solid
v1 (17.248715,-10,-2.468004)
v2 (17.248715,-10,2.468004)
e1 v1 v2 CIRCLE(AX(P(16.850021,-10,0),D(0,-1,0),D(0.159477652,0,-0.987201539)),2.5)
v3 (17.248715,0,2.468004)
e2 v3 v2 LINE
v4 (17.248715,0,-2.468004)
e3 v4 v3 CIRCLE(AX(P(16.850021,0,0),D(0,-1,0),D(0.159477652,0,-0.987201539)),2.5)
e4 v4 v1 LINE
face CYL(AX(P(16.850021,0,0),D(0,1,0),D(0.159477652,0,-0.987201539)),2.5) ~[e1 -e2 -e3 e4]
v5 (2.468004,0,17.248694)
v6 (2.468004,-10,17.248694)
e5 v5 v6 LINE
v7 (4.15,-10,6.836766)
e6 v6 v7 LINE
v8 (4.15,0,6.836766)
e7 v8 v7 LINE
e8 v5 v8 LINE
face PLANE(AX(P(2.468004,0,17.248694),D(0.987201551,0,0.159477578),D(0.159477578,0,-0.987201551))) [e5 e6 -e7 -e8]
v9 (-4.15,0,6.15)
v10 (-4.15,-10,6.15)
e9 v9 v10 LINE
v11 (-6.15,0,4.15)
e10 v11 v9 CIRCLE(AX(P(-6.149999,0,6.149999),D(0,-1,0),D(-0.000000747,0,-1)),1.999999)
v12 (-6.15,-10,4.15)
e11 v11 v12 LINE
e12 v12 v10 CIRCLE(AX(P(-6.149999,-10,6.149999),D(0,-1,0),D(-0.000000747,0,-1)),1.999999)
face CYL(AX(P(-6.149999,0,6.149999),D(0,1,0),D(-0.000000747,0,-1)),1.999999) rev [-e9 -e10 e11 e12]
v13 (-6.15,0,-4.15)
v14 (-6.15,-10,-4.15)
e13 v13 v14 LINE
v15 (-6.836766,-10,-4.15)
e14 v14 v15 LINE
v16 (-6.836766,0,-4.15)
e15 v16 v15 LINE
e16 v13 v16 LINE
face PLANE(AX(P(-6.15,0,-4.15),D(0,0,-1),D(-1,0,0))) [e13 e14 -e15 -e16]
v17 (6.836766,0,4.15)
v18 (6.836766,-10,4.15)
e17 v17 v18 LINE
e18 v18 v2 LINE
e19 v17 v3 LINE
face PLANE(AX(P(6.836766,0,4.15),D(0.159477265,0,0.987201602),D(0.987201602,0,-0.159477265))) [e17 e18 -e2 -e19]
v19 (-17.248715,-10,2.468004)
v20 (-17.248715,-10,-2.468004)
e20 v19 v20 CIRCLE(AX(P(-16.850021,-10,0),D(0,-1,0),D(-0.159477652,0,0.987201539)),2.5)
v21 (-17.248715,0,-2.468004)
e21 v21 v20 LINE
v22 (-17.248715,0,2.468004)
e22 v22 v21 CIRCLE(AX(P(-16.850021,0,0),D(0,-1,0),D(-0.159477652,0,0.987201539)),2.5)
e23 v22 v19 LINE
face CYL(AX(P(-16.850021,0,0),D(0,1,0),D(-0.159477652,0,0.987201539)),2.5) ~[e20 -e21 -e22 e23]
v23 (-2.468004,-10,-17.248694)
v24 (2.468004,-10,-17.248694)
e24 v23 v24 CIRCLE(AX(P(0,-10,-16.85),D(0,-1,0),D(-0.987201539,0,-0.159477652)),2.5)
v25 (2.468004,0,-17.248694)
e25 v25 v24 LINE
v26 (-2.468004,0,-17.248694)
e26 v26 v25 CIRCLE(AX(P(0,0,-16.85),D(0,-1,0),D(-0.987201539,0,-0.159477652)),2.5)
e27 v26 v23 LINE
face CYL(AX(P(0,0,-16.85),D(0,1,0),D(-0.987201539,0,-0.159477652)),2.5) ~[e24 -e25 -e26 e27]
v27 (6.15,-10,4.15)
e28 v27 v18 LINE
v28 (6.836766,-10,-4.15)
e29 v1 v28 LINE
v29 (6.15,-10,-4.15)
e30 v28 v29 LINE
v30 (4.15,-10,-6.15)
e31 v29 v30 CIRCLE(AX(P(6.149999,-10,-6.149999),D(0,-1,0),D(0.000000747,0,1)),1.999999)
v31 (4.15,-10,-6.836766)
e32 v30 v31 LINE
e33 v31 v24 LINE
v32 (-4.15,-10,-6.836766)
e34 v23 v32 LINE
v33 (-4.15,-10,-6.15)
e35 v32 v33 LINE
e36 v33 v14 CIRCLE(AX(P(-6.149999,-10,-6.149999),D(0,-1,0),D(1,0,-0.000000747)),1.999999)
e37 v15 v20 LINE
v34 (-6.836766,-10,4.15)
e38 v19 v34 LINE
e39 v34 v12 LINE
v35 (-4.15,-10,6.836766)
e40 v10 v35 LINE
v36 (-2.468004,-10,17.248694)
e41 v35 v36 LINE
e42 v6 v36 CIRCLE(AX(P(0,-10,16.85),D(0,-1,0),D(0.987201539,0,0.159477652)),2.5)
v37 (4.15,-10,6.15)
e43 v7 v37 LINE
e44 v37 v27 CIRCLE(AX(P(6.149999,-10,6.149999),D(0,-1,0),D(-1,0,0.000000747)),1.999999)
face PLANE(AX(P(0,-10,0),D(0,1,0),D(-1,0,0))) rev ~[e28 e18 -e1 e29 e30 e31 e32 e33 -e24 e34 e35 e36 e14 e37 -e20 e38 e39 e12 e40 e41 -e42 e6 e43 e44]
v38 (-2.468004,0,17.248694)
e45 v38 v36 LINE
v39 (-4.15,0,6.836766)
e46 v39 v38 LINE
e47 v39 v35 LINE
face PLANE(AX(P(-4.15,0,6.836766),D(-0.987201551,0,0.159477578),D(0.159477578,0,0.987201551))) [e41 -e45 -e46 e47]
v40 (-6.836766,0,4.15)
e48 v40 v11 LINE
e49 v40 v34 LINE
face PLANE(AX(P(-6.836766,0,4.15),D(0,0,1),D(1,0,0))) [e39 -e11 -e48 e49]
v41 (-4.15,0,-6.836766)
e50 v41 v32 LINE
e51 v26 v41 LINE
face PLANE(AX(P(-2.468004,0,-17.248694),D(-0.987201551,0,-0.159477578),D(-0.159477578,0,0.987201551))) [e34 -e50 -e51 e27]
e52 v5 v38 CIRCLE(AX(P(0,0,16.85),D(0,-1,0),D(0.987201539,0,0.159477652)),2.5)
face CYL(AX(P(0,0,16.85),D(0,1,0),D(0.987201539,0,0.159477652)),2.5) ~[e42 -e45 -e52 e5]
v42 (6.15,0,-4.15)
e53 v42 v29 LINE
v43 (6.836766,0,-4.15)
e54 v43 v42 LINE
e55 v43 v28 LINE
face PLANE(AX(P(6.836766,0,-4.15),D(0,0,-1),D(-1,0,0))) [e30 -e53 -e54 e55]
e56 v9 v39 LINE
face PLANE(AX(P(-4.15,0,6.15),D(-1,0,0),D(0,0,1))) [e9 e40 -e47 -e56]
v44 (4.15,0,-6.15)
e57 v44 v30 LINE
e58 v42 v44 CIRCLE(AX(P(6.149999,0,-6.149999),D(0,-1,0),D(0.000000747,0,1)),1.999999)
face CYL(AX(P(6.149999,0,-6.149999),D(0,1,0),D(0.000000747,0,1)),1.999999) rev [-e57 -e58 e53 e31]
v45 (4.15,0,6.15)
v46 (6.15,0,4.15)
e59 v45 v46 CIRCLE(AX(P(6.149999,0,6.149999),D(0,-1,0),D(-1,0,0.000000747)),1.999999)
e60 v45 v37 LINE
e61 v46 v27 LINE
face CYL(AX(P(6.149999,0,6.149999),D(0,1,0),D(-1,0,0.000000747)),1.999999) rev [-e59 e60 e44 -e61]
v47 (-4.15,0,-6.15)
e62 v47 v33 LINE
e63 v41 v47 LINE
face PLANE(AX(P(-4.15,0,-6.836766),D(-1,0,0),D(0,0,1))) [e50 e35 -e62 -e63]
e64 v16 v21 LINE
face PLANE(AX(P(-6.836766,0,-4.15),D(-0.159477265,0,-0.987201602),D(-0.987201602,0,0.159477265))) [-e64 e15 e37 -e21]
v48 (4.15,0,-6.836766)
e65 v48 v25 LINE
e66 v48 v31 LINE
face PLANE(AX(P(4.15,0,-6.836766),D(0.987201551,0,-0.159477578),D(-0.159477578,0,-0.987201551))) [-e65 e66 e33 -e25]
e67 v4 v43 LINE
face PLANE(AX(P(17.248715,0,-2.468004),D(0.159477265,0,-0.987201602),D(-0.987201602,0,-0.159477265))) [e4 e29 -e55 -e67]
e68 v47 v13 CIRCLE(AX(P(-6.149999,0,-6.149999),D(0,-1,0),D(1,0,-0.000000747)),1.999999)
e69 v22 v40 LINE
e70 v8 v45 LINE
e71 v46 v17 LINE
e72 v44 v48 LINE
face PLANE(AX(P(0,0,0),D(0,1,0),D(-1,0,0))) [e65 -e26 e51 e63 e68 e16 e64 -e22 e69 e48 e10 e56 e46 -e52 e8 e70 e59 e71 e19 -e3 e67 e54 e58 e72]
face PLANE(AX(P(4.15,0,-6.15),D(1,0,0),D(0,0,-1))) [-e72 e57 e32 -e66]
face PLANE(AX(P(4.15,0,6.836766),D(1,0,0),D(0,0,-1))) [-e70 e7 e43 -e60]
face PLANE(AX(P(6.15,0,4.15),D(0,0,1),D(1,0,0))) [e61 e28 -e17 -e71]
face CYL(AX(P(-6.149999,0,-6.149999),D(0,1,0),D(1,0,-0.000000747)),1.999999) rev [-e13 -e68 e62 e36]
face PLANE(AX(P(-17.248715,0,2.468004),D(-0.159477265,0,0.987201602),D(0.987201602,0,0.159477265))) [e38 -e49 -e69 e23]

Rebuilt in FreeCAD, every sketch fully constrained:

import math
import FreeCAD as App
import Part
import Sketcher

V = App.Vector
Q = App.Units.Quantity

doc = App.newDocument("Part")
body = doc.addObject("PartDesign::Body", "Body")

sketch1 = body.newObject("Sketcher::SketchObject", "Sketch")
sketch1.AttachmentSupport = (doc.getObject("XZ_Plane"), [""])
sketch1.MapMode = "FlatFace"
sketch1.addGeometry(Part.LineSegment(V(-6.15, 4.15, 0), V(-6.836766, 4.15, 0)), False)
sketch1.addGeometry(Part.LineSegment(V(-6.836766, 4.15, 0), V(-17.248715, 2.468004, 0)), False)
sketch1.addGeometry(Part.ArcOfCircle(Part.Circle(V(-16.850021, 0, 0), V(0, 0, 1), 2.5), math.radians(99.176579), math.radians(260.823421)), False)
sketch1.addGeometry(Part.LineSegment(V(-17.248715, -2.468004, 0), V(-6.836766, -4.15, 0)), False)
sketch1.addGeometry(Part.LineSegment(V(-6.836766, -4.15, 0), V(-6.15, -4.15, 0)), False)
sketch1.addGeometry(Part.ArcOfCircle(Part.Circle(V(-6.149999, -6.149999, 0), V(0, 0, 1), 1.999999), math.radians(-0.000043), math.radians(90.000043)), False)
sketch1.addGeometry(Part.LineSegment(V(-4.15, -6.15, 0), V(-4.15, -6.836766, 0)), False)
sketch1.addGeometry(Part.LineSegment(V(-4.15, -6.836766, 0), V(-2.468004, -17.248694, 0)), False)
sketch1.addGeometry(Part.ArcOfCircle(Part.Circle(V(0, -16.85, 0), V(0, 0, 1), 2.5), math.radians(-170.823421), math.radians(-9.176579)), False)
sketch1.addGeometry(Part.LineSegment(V(2.468004, -17.248694, 0), V(4.15, -6.836766, 0)), False)
sketch1.addGeometry(Part.LineSegment(V(4.15, -6.836766, 0), V(4.15, -6.15, 0)), False)
sketch1.addGeometry(Part.ArcOfCircle(Part.Circle(V(6.149999, -6.149999, 0), V(0, 0, 1), 1.999999), math.radians(89.999957), math.radians(180.000043)), False)
sketch1.addGeometry(Part.LineSegment(V(6.15, -4.15, 0), V(6.836766, -4.15, 0)), False)
sketch1.addGeometry(Part.LineSegment(V(6.836766, -4.15, 0), V(17.248715, -2.468004, 0)), False)
sketch1.addGeometry(Part.ArcOfCircle(Part.Circle(V(16.850021, 0, 0), V(0, 0, 1), 2.5), math.radians(-80.823421), math.radians(80.823421)), False)
sketch1.addGeometry(Part.LineSegment(V(17.248715, 2.468004, 0), V(6.836766, 4.15, 0)), False)
sketch1.addGeometry(Part.LineSegment(V(6.836766, 4.15, 0), V(6.15, 4.15, 0)), False)
sketch1.addGeometry(Part.ArcOfCircle(Part.Circle(V(6.149999, 6.149999, 0), V(0, 0, 1), 1.999999), math.radians(179.999957), math.radians(270.000043)), False)
sketch1.addGeometry(Part.LineSegment(V(4.15, 6.15, 0), V(4.15, 6.836766, 0)), False)
sketch1.addGeometry(Part.LineSegment(V(4.15, 6.836766, 0), V(2.468004, 17.248694, 0)), False)
sketch1.addGeometry(Part.ArcOfCircle(Part.Circle(V(0, 16.85, 0), V(0, 0, 1), 2.5), math.radians(9.176579), math.radians(170.823421)), False)
sketch1.addGeometry(Part.LineSegment(V(-2.468004, 17.248694, 0), V(-4.15, 6.836766, 0)), False)
sketch1.addGeometry(Part.LineSegment(V(-4.15, 6.836766, 0), V(-4.15, 6.15, 0)), False)
sketch1.addGeometry(Part.ArcOfCircle(Part.Circle(V(-6.149999, 6.149999, 0), V(0, 0, 1), 1.999999), math.radians(-90.000043), math.radians(0.000043)), False)
sketch1.addConstraint(Sketcher.Constraint("Coincident", 0, 2, 1, 1))
sketch1.addConstraint(Sketcher.Constraint("Coincident", 1, 2, 2, 1))
sketch1.addConstraint(Sketcher.Constraint("Coincident", 2, 2, 3, 1))
sketch1.addConstraint(Sketcher.Constraint("Coincident", 3, 2, 4, 1))
sketch1.addConstraint(Sketcher.Constraint("Coincident", 4, 2, 5, 2))
sketch1.addConstraint(Sketcher.Constraint("Coincident", 5, 1, 6, 1))
sketch1.addConstraint(Sketcher.Constraint("Coincident", 6, 2, 7, 1))
sketch1.addConstraint(Sketcher.Constraint("Coincident", 7, 2, 8, 1))
sketch1.addConstraint(Sketcher.Constraint("Coincident", 8, 2, 9, 1))
sketch1.addConstraint(Sketcher.Constraint("Coincident", 9, 2, 10, 1))
sketch1.addConstraint(Sketcher.Constraint("Coincident", 10, 2, 11, 2))
sketch1.addConstraint(Sketcher.Constraint("Coincident", 11, 1, 12, 1))
sketch1.addConstraint(Sketcher.Constraint("Coincident", 12, 2, 13, 1))
sketch1.addConstraint(Sketcher.Constraint("Coincident", 13, 2, 14, 1))
sketch1.addConstraint(Sketcher.Constraint("Coincident", 14, 2, 15, 1))
sketch1.addConstraint(Sketcher.Constraint("Coincident", 15, 2, 16, 1))
sketch1.addConstraint(Sketcher.Constraint("Coincident", 16, 2, 17, 2))
sketch1.addConstraint(Sketcher.Constraint("Coincident", 17, 1, 18, 1))
sketch1.addConstraint(Sketcher.Constraint("Coincident", 18, 2, 19, 1))
sketch1.addConstraint(Sketcher.Constraint("Coincident", 19, 2, 20, 1))
sketch1.addConstraint(Sketcher.Constraint("Coincident", 20, 2, 21, 1))
sketch1.addConstraint(Sketcher.Constraint("Coincident", 21, 2, 22, 1))
sketch1.addConstraint(Sketcher.Constraint("Coincident", 22, 2, 23, 2))
sketch1.addConstraint(Sketcher.Constraint("Coincident", 23, 1, 0, 1))
sketch1.addConstraint(Sketcher.Constraint("Horizontal", 0))
sketch1.addConstraint(Sketcher.Constraint("Horizontal", 4))
sketch1.addConstraint(Sketcher.Constraint("Vertical", 6))
sketch1.addConstraint(Sketcher.Constraint("Vertical", 10))
sketch1.addConstraint(Sketcher.Constraint("Horizontal", 12))
sketch1.addConstraint(Sketcher.Constraint("Horizontal", 16))
sketch1.addConstraint(Sketcher.Constraint("Vertical", 18))
sketch1.addConstraint(Sketcher.Constraint("Vertical", 22))
sketch1.addConstraint(Sketcher.Constraint("PointOnObject", 2, 3, -1))
sketch1.addConstraint(Sketcher.Constraint("PointOnObject", 8, 3, -2))
sketch1.addConstraint(Sketcher.Constraint("PointOnObject", 14, 3, -1))
sketch1.addConstraint(Sketcher.Constraint("PointOnObject", 20, 3, -2))
sketch1.addConstraint(Sketcher.Constraint("Radius", 5, Q("1.999999 mm")))
sketch1.addConstraint(Sketcher.Constraint("Radius", 11, Q("1.999999 mm")))
sketch1.addConstraint(Sketcher.Constraint("Radius", 17, Q("1.999999 mm")))
sketch1.addConstraint(Sketcher.Constraint("Radius", 23, Q("1.999999 mm")))
sketch1.addConstraint(Sketcher.Constraint("Radius", 2, Q("2.5 mm")))
sketch1.addConstraint(Sketcher.Constraint("Radius", 8, Q("2.5 mm")))
sketch1.addConstraint(Sketcher.Constraint("Radius", 14, Q("2.5 mm")))
sketch1.addConstraint(Sketcher.Constraint("Radius", 20, Q("2.5 mm")))
sketch1.addConstraint(Sketcher.Constraint("DistanceY", 8, 3, 17, 3, Q("22.999998 mm")))
sketch1.addConstraint(Sketcher.Constraint("DistanceY", 5, 3, 20, 3, Q("22.999998 mm")))
sketch1.addConstraint(Sketcher.Constraint("DistanceY", 11, 3, 20, 3, Q("22.999998 mm")))
sketch1.addConstraint(Sketcher.Constraint("DistanceY", 0, 2, 17, 3, Q("1.999999 mm")))
sketch1.addConstraint(Sketcher.Constraint("DistanceX", 4, 2, 5, 1, Q("2 mm")))
sketch1.addConstraint(Sketcher.Constraint("DistanceY", 5, 1, 4, 2, Q("2 mm")))
sketch1.addConstraint(Sketcher.Constraint("DistanceX", 10, 2, 11, 1, Q("2 mm")))
sketch1.addConstraint(Sketcher.Constraint("DistanceY", 10, 2, 11, 1, Q("2 mm")))
sketch1.addConstraint(Sketcher.Constraint("DistanceX", 17, 1, 16, 2, Q("2 mm")))
sketch1.addConstraint(Sketcher.Constraint("DistanceY", 16, 2, 17, 1, Q("2 mm")))
sketch1.addConstraint(Sketcher.Constraint("DistanceX", 17, 1, 11, 1, Q("2 mm")))
sketch1.addConstraint(Sketcher.Constraint("DistanceY", 0, 2, 22, 2, Q("2 mm")))
sketch1.addConstraint(Sketcher.Constraint("DistanceX", 23, 1, 22, 2, Q("2 mm")))
sketch1.addConstraint(Sketcher.Constraint("DistanceY", 8, 3, 5, 3, Q("10.700001 mm")))
sketch1.addConstraint(Sketcher.Constraint("DistanceX", 5, 1, 11, 3, Q("10.299999 mm")))
sketch1.addConstraint(Sketcher.Constraint("DistanceX", 23, 3, 17, 1, Q("10.299999 mm")))
sketch1.addConstraint(Sketcher.Constraint("DistanceX", 5, 3, -1, 1, Q("6.149999 mm")))
sketch1.addConstraint(Sketcher.Constraint("DistanceY", 5, 3, -1, 1, Q("6.149999 mm")))
sketch1.addConstraint(Sketcher.Constraint("DistanceX", 0, 2, 0, 1, Q("0.686766 mm")))
sketch1.addConstraint(Sketcher.Constraint("DistanceX", 4, 1, 4, 2, Q("0.686766 mm")))
sketch1.addConstraint(Sketcher.Constraint("DistanceX", 12, 1, 12, 2, Q("0.686766 mm")))
sketch1.addConstraint(Sketcher.Constraint("DistanceX", 16, 2, 16, 1, Q("0.686766 mm")))
sketch1.addConstraint(Sketcher.Constraint("DistanceY", 6, 2, 6, 1, Q("0.686766 mm")))
sketch1.addConstraint(Sketcher.Constraint("DistanceY", 10, 1, 10, 2, Q("0.686766 mm")))
sketch1.addConstraint(Sketcher.Constraint("DistanceY", 18, 1, 18, 2, Q("0.686766 mm")))
sketch1.addConstraint(Sketcher.Constraint("DistanceY", 22, 2, 22, 1, Q("0.686766 mm")))
sketch1.addConstraint(Sketcher.Constraint("DistanceX", 2, 3, -1, 1, Q("16.850021 mm")))
sketch1.addConstraint(Sketcher.Constraint("DistanceX", -1, 1, 14, 3, Q("16.850021 mm")))
sketch1.addConstraint(Sketcher.Constraint("DistanceX", 1, 2, 0, 2, Q("10.411949 mm")))
sketch1.addConstraint(Sketcher.Constraint("DistanceY", 2, 2, 1, 2, Q("4.936008 mm")))
sketch1.addConstraint(Sketcher.Constraint("DistanceX", 7, 2, 8, 2, Q("4.936008 mm")))
sketch1.addConstraint(Sketcher.Constraint("DistanceY", 8, 2, 6, 2, Q("10.411928 mm")))
sketch1.addConstraint(Sketcher.Constraint("DistanceX", 12, 2, 13, 2, Q("10.411949 mm")))
sketch1.addConstraint(Sketcher.Constraint("DistanceY", 13, 2, 14, 2, Q("4.936008 mm")))
sketch1.addConstraint(Sketcher.Constraint("DistanceX", 20, 2, 19, 2, Q("4.936008 mm")))
sketch1.addConstraint(Sketcher.Constraint("DistanceY", 18, 2, 20, 2, Q("10.411928 mm")))
pad1 = body.newObject("PartDesign::Pad", "Pad")
pad1.Profile = sketch1
pad1.Length = 10

doc.recompute()
